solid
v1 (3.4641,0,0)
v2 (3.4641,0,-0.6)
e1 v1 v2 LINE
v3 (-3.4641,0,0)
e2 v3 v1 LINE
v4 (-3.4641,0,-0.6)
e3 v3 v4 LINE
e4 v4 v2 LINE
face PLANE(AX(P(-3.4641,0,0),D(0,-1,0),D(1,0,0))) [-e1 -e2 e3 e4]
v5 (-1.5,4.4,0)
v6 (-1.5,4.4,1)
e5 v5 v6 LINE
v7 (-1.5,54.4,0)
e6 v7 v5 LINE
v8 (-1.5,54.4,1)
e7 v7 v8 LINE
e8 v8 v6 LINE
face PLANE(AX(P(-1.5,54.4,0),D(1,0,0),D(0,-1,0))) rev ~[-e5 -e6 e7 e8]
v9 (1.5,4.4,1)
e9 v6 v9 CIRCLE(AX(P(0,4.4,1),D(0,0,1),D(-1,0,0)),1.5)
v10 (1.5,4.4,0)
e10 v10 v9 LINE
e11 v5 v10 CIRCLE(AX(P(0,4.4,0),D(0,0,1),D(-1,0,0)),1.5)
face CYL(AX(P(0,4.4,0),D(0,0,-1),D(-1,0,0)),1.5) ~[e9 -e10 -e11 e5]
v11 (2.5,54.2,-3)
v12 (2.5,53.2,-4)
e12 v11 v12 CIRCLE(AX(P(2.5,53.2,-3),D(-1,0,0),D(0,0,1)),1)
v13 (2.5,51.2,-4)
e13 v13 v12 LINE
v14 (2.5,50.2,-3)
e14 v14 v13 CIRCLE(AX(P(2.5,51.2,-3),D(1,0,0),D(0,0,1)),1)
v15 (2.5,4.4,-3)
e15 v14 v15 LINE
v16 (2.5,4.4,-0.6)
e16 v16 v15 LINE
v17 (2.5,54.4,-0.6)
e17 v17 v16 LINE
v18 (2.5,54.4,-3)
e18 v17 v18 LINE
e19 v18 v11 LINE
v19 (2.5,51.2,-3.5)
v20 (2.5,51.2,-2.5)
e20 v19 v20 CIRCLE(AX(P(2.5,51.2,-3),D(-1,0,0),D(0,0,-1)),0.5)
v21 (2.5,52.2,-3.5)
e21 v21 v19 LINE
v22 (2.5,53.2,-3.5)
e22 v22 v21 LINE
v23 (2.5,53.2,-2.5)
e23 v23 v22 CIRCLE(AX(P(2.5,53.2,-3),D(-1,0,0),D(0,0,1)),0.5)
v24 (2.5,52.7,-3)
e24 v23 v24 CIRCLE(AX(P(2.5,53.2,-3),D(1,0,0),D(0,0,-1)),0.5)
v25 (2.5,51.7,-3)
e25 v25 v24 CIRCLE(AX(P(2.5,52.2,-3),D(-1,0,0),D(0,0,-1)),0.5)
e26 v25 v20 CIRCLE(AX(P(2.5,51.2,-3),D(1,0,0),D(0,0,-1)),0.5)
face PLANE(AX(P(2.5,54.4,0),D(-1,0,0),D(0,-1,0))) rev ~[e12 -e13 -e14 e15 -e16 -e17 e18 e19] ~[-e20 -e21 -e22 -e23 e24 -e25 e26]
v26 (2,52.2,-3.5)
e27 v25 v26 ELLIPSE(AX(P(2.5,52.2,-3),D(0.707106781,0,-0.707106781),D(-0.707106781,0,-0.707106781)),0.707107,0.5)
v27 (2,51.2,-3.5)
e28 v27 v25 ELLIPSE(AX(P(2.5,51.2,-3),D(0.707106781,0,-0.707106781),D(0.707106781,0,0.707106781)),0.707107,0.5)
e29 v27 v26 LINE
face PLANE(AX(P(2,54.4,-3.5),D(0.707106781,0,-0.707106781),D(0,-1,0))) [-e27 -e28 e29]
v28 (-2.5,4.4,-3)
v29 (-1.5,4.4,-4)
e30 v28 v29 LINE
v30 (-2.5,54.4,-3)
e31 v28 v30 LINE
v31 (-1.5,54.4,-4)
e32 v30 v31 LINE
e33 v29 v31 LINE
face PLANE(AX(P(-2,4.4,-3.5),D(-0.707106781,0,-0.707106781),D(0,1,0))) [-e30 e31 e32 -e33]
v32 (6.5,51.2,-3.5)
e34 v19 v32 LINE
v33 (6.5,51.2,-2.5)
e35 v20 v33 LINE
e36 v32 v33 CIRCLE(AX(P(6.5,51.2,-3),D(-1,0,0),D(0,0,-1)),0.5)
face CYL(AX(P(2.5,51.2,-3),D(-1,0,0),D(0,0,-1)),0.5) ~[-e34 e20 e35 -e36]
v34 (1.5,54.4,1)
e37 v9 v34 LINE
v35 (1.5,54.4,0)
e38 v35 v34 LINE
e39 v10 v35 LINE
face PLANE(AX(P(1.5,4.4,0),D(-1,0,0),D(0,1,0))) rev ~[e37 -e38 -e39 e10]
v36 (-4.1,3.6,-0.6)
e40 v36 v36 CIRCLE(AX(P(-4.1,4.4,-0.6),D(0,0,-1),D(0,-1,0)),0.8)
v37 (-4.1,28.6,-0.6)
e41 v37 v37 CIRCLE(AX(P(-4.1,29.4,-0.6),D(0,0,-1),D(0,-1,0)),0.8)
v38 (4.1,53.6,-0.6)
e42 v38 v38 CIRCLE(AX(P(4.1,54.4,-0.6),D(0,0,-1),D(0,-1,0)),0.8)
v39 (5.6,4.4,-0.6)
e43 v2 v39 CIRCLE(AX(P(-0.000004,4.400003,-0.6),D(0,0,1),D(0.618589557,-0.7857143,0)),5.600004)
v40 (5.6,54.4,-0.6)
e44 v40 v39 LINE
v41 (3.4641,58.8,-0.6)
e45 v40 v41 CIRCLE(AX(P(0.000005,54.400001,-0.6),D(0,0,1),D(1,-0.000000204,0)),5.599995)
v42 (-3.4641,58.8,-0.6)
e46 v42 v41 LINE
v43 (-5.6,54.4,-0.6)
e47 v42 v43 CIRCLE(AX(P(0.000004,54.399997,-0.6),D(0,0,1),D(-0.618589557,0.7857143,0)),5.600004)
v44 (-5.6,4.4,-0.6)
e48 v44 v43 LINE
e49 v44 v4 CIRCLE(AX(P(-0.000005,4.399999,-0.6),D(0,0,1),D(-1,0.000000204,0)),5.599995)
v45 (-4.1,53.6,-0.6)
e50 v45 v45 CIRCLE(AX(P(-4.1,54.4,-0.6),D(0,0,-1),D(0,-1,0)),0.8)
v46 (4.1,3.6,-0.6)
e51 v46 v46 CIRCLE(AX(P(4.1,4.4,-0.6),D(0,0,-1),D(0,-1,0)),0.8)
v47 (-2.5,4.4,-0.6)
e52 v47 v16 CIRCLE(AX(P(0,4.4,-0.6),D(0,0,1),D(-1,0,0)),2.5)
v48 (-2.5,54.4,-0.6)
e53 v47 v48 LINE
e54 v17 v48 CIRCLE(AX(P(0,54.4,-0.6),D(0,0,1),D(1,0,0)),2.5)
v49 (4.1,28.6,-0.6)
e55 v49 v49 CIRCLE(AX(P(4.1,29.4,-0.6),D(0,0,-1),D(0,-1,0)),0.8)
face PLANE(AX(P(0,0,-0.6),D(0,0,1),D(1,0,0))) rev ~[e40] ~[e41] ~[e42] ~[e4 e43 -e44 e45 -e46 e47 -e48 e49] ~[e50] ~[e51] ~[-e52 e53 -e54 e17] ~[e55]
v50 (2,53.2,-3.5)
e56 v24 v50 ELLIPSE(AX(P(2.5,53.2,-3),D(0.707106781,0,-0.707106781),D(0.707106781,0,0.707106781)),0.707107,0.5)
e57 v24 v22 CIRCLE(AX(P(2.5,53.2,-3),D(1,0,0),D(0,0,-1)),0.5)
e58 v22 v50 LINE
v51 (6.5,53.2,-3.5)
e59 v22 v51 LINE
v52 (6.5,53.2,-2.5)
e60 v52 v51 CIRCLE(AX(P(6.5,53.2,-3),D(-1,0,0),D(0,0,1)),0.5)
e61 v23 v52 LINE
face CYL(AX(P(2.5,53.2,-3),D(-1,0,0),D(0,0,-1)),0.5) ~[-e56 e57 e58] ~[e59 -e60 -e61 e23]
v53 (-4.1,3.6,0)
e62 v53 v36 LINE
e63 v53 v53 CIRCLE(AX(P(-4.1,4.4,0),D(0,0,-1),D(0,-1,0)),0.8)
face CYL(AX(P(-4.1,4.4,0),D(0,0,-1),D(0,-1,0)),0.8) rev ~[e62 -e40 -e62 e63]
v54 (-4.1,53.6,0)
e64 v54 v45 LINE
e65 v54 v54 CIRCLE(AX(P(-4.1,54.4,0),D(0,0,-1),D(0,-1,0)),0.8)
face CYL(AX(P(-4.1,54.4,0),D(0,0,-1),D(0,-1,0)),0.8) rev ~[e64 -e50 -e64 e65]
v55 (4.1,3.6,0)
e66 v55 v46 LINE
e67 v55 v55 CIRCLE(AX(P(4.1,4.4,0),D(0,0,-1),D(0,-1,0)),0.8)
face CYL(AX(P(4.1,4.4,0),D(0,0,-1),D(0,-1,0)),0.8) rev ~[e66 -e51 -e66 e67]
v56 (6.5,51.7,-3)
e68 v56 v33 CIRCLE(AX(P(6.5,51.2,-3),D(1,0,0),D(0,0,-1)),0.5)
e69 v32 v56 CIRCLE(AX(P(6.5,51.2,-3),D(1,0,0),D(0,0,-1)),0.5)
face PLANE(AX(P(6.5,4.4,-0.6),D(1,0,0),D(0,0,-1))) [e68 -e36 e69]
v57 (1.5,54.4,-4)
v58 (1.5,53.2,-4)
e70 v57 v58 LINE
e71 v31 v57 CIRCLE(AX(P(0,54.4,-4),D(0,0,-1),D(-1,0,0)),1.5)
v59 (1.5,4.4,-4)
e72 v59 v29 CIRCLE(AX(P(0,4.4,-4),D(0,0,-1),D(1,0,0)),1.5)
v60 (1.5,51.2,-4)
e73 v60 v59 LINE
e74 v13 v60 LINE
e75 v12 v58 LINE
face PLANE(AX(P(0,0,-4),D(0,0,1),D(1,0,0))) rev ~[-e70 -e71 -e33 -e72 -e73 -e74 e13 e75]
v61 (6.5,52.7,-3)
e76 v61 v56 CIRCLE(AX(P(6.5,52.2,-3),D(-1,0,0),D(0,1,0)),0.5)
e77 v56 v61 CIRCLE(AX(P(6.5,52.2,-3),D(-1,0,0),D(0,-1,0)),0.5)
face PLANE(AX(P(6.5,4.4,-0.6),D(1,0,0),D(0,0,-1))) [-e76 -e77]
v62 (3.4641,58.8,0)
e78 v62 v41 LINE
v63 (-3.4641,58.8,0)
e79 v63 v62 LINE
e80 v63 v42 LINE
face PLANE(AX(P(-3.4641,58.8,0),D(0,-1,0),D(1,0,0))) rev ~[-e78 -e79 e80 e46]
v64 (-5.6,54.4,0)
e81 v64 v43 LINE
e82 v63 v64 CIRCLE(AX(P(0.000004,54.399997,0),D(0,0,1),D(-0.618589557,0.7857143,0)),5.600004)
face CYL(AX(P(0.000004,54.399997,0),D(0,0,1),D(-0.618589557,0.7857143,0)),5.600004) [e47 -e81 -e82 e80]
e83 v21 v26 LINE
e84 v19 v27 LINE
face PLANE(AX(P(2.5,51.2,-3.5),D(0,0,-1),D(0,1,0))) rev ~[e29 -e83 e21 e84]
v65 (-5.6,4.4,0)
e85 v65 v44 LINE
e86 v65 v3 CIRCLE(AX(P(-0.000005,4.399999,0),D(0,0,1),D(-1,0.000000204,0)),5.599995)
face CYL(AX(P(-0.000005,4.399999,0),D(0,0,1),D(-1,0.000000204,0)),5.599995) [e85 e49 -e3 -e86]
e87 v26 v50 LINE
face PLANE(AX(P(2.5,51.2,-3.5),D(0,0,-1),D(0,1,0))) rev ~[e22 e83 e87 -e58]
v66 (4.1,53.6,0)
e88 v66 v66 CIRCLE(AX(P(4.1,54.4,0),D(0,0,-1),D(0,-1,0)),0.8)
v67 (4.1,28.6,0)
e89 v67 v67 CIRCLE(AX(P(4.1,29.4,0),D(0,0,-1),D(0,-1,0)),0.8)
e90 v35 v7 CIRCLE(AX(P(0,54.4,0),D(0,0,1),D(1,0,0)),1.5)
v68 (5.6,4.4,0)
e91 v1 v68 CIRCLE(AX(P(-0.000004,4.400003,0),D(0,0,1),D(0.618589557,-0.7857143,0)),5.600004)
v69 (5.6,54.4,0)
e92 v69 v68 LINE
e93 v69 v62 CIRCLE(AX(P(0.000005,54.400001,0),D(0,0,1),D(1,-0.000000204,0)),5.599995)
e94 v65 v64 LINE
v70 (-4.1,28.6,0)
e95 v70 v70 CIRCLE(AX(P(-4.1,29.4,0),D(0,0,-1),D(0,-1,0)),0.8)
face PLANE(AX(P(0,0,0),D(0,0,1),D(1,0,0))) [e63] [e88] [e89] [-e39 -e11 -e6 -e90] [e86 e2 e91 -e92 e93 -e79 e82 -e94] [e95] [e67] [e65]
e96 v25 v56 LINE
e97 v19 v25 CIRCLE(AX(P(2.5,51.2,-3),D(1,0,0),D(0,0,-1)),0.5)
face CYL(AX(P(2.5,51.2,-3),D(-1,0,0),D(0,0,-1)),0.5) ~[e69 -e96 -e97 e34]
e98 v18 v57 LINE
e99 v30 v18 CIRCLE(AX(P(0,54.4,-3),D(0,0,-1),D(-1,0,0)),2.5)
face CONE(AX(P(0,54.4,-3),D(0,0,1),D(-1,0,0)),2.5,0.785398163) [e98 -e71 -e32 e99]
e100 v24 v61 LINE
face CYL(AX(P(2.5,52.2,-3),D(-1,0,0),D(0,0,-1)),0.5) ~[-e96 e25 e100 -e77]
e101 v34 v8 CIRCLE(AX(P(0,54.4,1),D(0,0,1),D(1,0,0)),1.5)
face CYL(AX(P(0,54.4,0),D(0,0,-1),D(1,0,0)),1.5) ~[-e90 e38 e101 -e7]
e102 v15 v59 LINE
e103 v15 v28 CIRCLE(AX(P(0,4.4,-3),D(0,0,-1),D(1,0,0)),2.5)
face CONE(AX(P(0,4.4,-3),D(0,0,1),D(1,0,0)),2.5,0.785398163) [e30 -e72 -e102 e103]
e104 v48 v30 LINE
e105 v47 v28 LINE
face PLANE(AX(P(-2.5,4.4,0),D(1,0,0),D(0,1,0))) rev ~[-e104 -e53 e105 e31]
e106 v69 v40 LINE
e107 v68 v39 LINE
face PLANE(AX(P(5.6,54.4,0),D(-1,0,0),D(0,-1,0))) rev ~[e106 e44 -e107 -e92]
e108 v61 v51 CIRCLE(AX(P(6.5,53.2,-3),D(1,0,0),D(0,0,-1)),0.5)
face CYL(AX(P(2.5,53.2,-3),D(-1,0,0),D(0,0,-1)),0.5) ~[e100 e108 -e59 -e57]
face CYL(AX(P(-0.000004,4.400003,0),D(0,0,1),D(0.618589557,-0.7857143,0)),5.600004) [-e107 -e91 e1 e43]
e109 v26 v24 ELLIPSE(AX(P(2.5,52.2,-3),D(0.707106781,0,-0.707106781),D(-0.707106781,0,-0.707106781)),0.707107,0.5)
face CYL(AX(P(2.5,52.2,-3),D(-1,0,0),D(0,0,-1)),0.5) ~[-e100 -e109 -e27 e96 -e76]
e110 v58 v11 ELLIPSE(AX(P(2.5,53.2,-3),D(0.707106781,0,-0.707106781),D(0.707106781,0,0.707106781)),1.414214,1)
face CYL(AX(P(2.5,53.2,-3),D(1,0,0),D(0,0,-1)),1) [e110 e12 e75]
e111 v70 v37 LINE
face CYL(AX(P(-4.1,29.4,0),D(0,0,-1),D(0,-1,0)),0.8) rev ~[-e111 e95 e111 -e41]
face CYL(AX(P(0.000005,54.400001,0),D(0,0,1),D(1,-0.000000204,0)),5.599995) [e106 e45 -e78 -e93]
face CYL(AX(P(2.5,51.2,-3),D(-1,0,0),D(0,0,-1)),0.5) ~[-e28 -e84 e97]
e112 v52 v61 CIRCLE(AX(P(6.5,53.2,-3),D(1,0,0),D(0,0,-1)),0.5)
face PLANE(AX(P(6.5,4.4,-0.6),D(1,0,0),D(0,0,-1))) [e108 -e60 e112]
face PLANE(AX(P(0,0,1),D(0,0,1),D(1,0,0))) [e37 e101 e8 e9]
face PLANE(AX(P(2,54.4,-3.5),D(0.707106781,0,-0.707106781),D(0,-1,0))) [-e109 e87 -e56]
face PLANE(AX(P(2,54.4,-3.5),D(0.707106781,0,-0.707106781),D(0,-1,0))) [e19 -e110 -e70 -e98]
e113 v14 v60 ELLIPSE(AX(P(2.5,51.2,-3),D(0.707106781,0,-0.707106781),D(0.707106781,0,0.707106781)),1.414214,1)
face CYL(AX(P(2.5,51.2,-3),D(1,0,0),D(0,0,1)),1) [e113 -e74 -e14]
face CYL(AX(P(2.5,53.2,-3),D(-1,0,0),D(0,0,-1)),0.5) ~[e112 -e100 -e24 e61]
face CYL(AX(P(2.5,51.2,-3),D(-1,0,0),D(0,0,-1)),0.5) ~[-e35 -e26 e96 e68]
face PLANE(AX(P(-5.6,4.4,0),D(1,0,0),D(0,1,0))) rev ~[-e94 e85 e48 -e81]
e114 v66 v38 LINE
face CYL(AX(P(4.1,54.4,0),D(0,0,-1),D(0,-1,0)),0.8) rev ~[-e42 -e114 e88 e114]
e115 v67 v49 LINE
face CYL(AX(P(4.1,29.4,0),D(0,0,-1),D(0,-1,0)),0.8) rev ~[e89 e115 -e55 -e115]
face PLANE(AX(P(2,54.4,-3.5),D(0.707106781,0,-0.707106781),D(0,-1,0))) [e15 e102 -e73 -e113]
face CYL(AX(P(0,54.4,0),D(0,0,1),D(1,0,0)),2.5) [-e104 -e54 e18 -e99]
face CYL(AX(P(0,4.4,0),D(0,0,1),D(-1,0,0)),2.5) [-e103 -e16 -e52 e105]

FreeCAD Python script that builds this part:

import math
import FreeCAD as App
import Part
import Sketcher

V = App.Vector


def edges_at(feature, points):
    """Names of the edges that pass closest to the given points."""
    edges = feature.Shape.Edges
    near = lambda p: min(range(len(edges)), key=lambda i: edges[i].distToShape(Part.Vertex(*p))[0])
    return sorted({f"Edge{near(p) + 1}" for p in points})

doc = App.newDocument("Part")
body = doc.addObject("PartDesign::Body", "Body")

sketch1 = doc.addObject("Sketcher::SketchObject", "Sketch")
body.addObject(sketch1)
sketch1.AttachmentSupport = (doc.XY_Plane, [""])
sketch1.MapMode = "FlatFace"
sketch1.addGeometry([
    Part.ArcOfCircle(Part.Circle(V(0, 54.4, 0), V(0, 0, 1), 1.5), math.radians(0), math.radians(180)),
    Part.LineSegment(V(-1.5, 54.4, 0), V(-1.5, 4.4, 0)),
    Part.ArcOfCircle(Part.Circle(V(0, 4.4, 0), V(0, 0, 1), 1.5), math.radians(180), math.radians(360)),
    Part.LineSegment(V(1.5, 4.4, 0), V(1.5, 54.4, 0)),
], False)
sketch1.addConstraint([
    Sketcher.Constraint("Tangent", 0, 2, 1, 1),
    Sketcher.Constraint("Tangent", 1, 2, 2, 1),
    Sketcher.Constraint("Tangent", 2, 2, 3, 1),
    Sketcher.Constraint("Tangent", 3, 2, 0, 1),
    Sketcher.Constraint("Vertical", 1),
    Sketcher.Constraint("Vertical", 3),
    Sketcher.Constraint("PointOnObject", 0, 3, -2),
    Sketcher.Constraint("Radius", 0, 1.5),
    Sketcher.Constraint("DistanceY", 1, 2, 1, 1, 50.0),
    Sketcher.Constraint("DistanceY", -1, 1, 0, 3, 54.4),
])
pad1 = doc.addObject("PartDesign::Pad", "Pad")
body.addObject(pad1)
pad1.Profile = sketch1
pad1.Length = 1

sketch2 = doc.addObject("Sketcher::SketchObject", "Sketch001")
body.addObject(sketch2)
sketch2.AttachmentSupport = (doc.XY_Plane, [""])
sketch2.MapMode = "FlatFace"
sketch2.addGeometry([
    Part.LineSegment(V(-2.5, 54.4, 0), V(-2.5, 4.4, 0)),
    Part.ArcOfCircle(Part.Circle(V(0, 4.4, 0), V(0, 0, 1), 2.5), math.radians(180), math.radians(360)),
    Part.LineSegment(V(2.5, 4.4, 0), V(2.5, 54.4, 0)),
    Part.ArcOfCircle(Part.Circle(V(0, 54.4, 0), V(0, 0, 1), 2.5), math.radians(0), math.radians(180)),
], False)
sketch2.addConstraint([
    Sketcher.Constraint("Tangent", 0, 2, 1, 1),
    Sketcher.Constraint("Tangent", 1, 2, 2, 1),
    Sketcher.Constraint("Tangent", 2, 2, 3, 1),
    Sketcher.Constraint("Tangent", 3, 2, 0, 1),
    Sketcher.Constraint("Vertical", 0),
    Sketcher.Constraint("Vertical", 2),
    Sketcher.Constraint("PointOnObject", 1, 3, -2),
    Sketcher.Constraint("DistanceY", 0, 2, 0, 1, 50.0),
    Sketcher.Constraint("Radius", 1, 2.5),
    Sketcher.Constraint("DistanceY", -1, 1, 1, 3, 4.4),
])
pad2 = doc.addObject("PartDesign::Pad", "Pad001")
body.addObject(pad2)
pad2.Profile = sketch2
pad2.Length = 4
pad2.Reversed = True

sketch3 = doc.addObject("Sketcher::SketchObject", "Sketch002")
body.addObject(sketch3)
sketch3.AttachmentSupport = (doc.XY_Plane, [""])
sketch3.MapMode = "FlatFace"
sketch3.addGeometry([
    Part.LineSegment(V(-5.6, 54.4, 0), V(-5.6, 4.4, 0)),
    Part.ArcOfCircle(Part.Circle(V(0, 4.4, 0), V(0, 0, 1), 5.6), math.radians(180), math.radians(232)),
    Part.LineSegment(V(-3.5, 0, 0), V(3.5, 0, 0)),
    Part.ArcOfCircle(Part.Circle(V(0, 4.4, 0), V(0, 0, 1), 5.6), math.radians(-52), math.radians(0)),
    Part.LineSegment(V(5.6, 4.4, 0), V(5.6, 54.4, 0)),
    Part.ArcOfCircle(Part.Circle(V(0, 54.4, 0), V(0, 0, 1), 5.6), math.radians(0), math.radians(52)),
    Part.LineSegment(V(3.5, 58.8, 0), V(-3.5, 58.8, 0)),
    Part.ArcOfCircle(Part.Circle(V(0, 54.4, 0), V(0, 0, 1), 5.6), math.radians(128), math.radians(180)),
    Part.ArcOfCircle(Part.Circle(V(0, 4.4, 0), V(0, 0, 1), 2.5), math.radians(180), math.radians(360)),
    Part.LineSegment(V(-2.5, 4.4, 0), V(-2.5, 54.4, 0)),
    Part.ArcOfCircle(Part.Circle(V(0, 54.4, 0), V(0, 0, 1), 2.5), math.radians(0), math.radians(180)),
    Part.LineSegment(V(2.5, 54.4, 0), V(2.5, 4.4, 0)),
], False)
sketch3.addConstraint([
    Sketcher.Constraint("Tangent", 0, 2, 1, 1),
    Sketcher.Constraint("Coincident", 1, 2, 2, 1),
    Sketcher.Constraint("Coincident", 2, 2, 3, 1),
    Sketcher.Constraint("Tangent", 3, 2, 4, 1),
    Sketcher.Constraint("Tangent", 4, 2, 5, 1),
    Sketcher.Constraint("Coincident", 5, 2, 6, 1),
    Sketcher.Constraint("Coincident", 6, 2, 7, 1),
    Sketcher.Constraint("Tangent", 7, 2, 0, 1),
    Sketcher.Constraint("Tangent", 8, 1, 9, 1),
    Sketcher.Constraint("Tangent", 9, 2, 10, 2),
    Sketcher.Constraint("Tangent", 10, 1, 11, 1),
    Sketcher.Constraint("Tangent", 11, 2, 8, 2),
    Sketcher.Constraint("Vertical", 0),
    Sketcher.Constraint("Horizontal", 2),
    Sketcher.Constraint("Vertical", 4),
    Sketcher.Constraint("Horizontal", 6),
    Sketcher.Constraint("Vertical", 9),
    Sketcher.Constraint("Vertical", 11),
    Sketcher.Constraint("Coincident", 3, 3, 1, 3),
    Sketcher.Constraint("Coincident", 7, 3, 5, 3),
    Sketcher.Constraint("Coincident", 8, 3, 1, 3),
    Sketcher.Constraint("Coincident", 10, 3, 5, 3),
    Sketcher.Constraint("Equal", 1, 3),
    Sketcher.Constraint("Symmetric", 1, 2, 2, 2, -1, 1),
    Sketcher.Constraint("Vertical", 2, 2, 5, 2),
    Sketcher.Constraint("DistanceY", 0, 2, 0, 1, 50.0),
    Sketcher.Constraint("Radius", 1, 5.6),
    Sketcher.Constraint("Radius", 8, 2.5),
    Sketcher.Constraint("DistanceY", -1, 1, 1, 3, 4.4),
])
pad3 = doc.addObject("PartDesign::Pad", "Pad002")
body.addObject(pad3)
pad3.Profile = sketch3
pad3.Length = 0.6
pad3.Reversed = True
doc.recompute()

chamfer = doc.addObject("PartDesign::Chamfer", "Chamfer")
body.addObject(chamfer)
chamfer.Base = (pad3, edges_at(pad3, [
    (2.5, 29.4, -4),
    (0, 1.9, -4),
    (-2.5, 29.4, -4),
    (0, 56.9, -4),
]))
chamfer.Size = 1

sketch4 = doc.addObject("Sketcher::SketchObject", "Sketch003")
body.addObject(sketch4)
sketch4.AttachmentSupport = (doc.XY_Plane, [""])
sketch4.MapMode = "FlatFace"
sketch4.addGeometry([
    Part.Circle(V(-4.1, 29.4, 0), V(0, 0, 1), 0.8),
    Part.Circle(V(4.1, 29.4, 0), V(0, 0, 1), 0.8),
    Part.Circle(V(-4.1, 54.4, 0), V(0, 0, 1), 0.8),
    Part.Circle(V(4.1, 54.4, 0), V(0, 0, 1), 0.8),
    Part.Circle(V(4.1, 4.4, 0), V(0, 0, 1), 0.8),
    Part.Circle(V(-4.1, 4.4, 0), V(0, 0, 1), 0.8),
], False)
sketch4.addConstraint([
    Sketcher.Constraint("Equal", 0, 1),
    Sketcher.Constraint("Equal", 1, 2),
    Sketcher.Constraint("Equal", 2, 3),
    Sketcher.Constraint("Equal", 3, 4),
    Sketcher.Constraint("Equal", 4, 5),
    Sketcher.Constraint("Symmetric", 0, 3, 1, 3, -2),
    Sketcher.Constraint("Symmetric", 2, 3, 3, 3, -2),
    Sketcher.Constraint("Symmetric", 4, 3, 5, 3, -2),
    Sketcher.Constraint("Vertical", 0, 3, 2, 3),
    Sketcher.Constraint("Vertical", 3, 3, 4, 3),
    Sketcher.Constraint("Diameter", 0, 1.6),
    Sketcher.Constraint("DistanceY", 0, 3, 2, 3, 25.0),
    Sketcher.Constraint("DistanceY", 4, 3, 1, 3, 25.0),
    Sketcher.Constraint("DistanceX", 0, 3, -1, 1, 4.1),
    Sketcher.Constraint("DistanceY", -1, 1, 0, 3, 29.4),
])
doc.recompute()
hole = doc.addObject("PartDesign::Hole", "Hole")
body.addObject(hole)
hole.Profile = sketch4
hole.ThreadType = "None"
hole.Diameter = 1.6
hole.DepthType = "Dimension"
hole.Depth = 8
hole.DrillPoint = "Angled"
hole.DrillPointAngle = 118

sketch5 = doc.addObject("Sketcher::SketchObject", "Sketch004")
body.addObject(sketch5)
sketch5.AttachmentSupport = (doc.YZ_Plane, [""])
sketch5.MapMode = "FlatFace"
sketch5.AttachmentOffset = App.Placement(V(0, 0, 2.5), App.Rotation())
sketch5.addGeometry([
    Part.ArcOfCircle(Part.Circle(V(53.2, -3, 0), V(0, 0, 1), 1), math.radians(-90), math.radians(90)),
    Part.LineSegment(V(53.2, -2, 0), V(51.2, -2, 0)),
    Part.ArcOfCircle(Part.Circle(V(51.2, -3, 0), V(0, 0, 1), 1), math.radians(90), math.radians(270)),
    Part.LineSegment(V(51.2, -4, 0), V(53.2, -4, 0)),
    Part.ArcOfCircle(Part.Circle(V(51.2, -3, 0), V(0, 0, 1), 0.5), math.radians(90), math.radians(270)),
    Part.LineSegment(V(51.2, -2.5, 0), V(53.2, -2.5, 0)),
    Part.ArcOfCircle(Part.Circle(V(53.2, -3, 0), V(0, 0, 1), 0.5), math.radians(-90), math.radians(90)),
    Part.LineSegment(V(53.2, -3.5, 0), V(51.2, -3.5, 0)),
], False)
sketch5.addConstraint([
    Sketcher.Constraint("Tangent", 0, 2, 1, 1),
    Sketcher.Constraint("Tangent", 1, 2, 2, 1),
    Sketcher.Constraint("Tangent", 2, 2, 3, 1),
    Sketcher.Constraint("Tangent", 3, 2, 0, 1),
    Sketcher.Constraint("Tangent", 4, 1, 5, 1),
    Sketcher.Constraint("Tangent", 5, 2, 6, 2),
    Sketcher.Constraint("Tangent", 6, 1, 7, 1),
    Sketcher.Constraint("Tangent", 7, 2, 4, 2),
    Sketcher.Constraint("Horizontal", 1),
    Sketcher.Constraint("Horizontal", 3),
    Sketcher.Constraint("Horizontal", 5),
    Sketcher.Constraint("Horizontal", 7),
    Sketcher.Constraint("Coincident", 4, 3, 2, 3),
    Sketcher.Constraint("Vertical", 6, 3, 0, 2),
    Sketcher.Constraint("Radius", 0, 1.0),
    Sketcher.Constraint("Radius", 4, 0.5),
    Sketcher.Constraint("DistanceX", 1, 2, 1, 1, 2.0),
    Sketcher.Constraint("DistanceY", 0, 2, -1, 1, 2.0),
    Sketcher.Constraint("DistanceX", -1, 1, 0, 3, 53.2),
])
pad4 = doc.addObject("PartDesign::Pad", "Pad003")
body.addObject(pad4)
pad4.Profile = sketch5
pad4.Length = 1
pad4.Reversed = True

sketch6 = doc.addObject("Sketcher::SketchObject", "Sketch005")
body.addObject(sketch6)
sketch6.AttachmentSupport = (doc.YZ_Plane, [""])
sketch6.MapMode = "FlatFace"
sketch6.AttachmentOffset = App.Placement(V(0, 0, 2.5), App.Rotation())
sketch6.addGeometry([
    Part.Circle(V(53.2, -3, 0), V(0, 0, 1), 0.5),
    Part.ArcOfCircle(Part.Circle(V(52.2, -3, 0), V(0, 0, 1), 0.5), math.radians(0), math.radians(180)),
    Part.ArcOfCircle(Part.Circle(V(52.2, -3, 0), V(0, 0, 1), 0.5), math.radians(180), math.radians(360)),
    Part.Circle(V(51.2, -3, 0), V(0, 0, 1), 0.5),
], False)
sketch6.addConstraint([
    Sketcher.Constraint("Tangent", 1, 1, 2, 2),
    Sketcher.Constraint("Coincident", 2, 1, 1, 2),
    Sketcher.Constraint("Equal", 0, 1),
    Sketcher.Constraint("Equal", 2, 3),
    Sketcher.Constraint("Horizontal", 0, 3, 1, 3),
    Sketcher.Constraint("Horizontal", 2, 3, 3, 3),
    Sketcher.Constraint("Horizontal", 3, 3, 1, 1),
    Sketcher.Constraint("Horizontal", 1, 1, 2, 1),
    Sketcher.Constraint("Diameter", 0, 1.0),
    Sketcher.Constraint("DistanceX", 1, 3, 0, 3, 1.0),
    Sketcher.Constraint("DistanceX", 3, 3, 1, 3, 1.0),
    Sketcher.Constraint("DistanceY", 0, 3, -1, 1, 3.0),
    Sketcher.Constraint("DistanceX", -1, 1, 0, 3, 53.2),
])
pad5 = doc.addObject("PartDesign::Pad", "Pad004")
body.addObject(pad5)
pad5.Profile = sketch6
pad5.Length = 8
pad5.Midplane = True

doc.recompute()
